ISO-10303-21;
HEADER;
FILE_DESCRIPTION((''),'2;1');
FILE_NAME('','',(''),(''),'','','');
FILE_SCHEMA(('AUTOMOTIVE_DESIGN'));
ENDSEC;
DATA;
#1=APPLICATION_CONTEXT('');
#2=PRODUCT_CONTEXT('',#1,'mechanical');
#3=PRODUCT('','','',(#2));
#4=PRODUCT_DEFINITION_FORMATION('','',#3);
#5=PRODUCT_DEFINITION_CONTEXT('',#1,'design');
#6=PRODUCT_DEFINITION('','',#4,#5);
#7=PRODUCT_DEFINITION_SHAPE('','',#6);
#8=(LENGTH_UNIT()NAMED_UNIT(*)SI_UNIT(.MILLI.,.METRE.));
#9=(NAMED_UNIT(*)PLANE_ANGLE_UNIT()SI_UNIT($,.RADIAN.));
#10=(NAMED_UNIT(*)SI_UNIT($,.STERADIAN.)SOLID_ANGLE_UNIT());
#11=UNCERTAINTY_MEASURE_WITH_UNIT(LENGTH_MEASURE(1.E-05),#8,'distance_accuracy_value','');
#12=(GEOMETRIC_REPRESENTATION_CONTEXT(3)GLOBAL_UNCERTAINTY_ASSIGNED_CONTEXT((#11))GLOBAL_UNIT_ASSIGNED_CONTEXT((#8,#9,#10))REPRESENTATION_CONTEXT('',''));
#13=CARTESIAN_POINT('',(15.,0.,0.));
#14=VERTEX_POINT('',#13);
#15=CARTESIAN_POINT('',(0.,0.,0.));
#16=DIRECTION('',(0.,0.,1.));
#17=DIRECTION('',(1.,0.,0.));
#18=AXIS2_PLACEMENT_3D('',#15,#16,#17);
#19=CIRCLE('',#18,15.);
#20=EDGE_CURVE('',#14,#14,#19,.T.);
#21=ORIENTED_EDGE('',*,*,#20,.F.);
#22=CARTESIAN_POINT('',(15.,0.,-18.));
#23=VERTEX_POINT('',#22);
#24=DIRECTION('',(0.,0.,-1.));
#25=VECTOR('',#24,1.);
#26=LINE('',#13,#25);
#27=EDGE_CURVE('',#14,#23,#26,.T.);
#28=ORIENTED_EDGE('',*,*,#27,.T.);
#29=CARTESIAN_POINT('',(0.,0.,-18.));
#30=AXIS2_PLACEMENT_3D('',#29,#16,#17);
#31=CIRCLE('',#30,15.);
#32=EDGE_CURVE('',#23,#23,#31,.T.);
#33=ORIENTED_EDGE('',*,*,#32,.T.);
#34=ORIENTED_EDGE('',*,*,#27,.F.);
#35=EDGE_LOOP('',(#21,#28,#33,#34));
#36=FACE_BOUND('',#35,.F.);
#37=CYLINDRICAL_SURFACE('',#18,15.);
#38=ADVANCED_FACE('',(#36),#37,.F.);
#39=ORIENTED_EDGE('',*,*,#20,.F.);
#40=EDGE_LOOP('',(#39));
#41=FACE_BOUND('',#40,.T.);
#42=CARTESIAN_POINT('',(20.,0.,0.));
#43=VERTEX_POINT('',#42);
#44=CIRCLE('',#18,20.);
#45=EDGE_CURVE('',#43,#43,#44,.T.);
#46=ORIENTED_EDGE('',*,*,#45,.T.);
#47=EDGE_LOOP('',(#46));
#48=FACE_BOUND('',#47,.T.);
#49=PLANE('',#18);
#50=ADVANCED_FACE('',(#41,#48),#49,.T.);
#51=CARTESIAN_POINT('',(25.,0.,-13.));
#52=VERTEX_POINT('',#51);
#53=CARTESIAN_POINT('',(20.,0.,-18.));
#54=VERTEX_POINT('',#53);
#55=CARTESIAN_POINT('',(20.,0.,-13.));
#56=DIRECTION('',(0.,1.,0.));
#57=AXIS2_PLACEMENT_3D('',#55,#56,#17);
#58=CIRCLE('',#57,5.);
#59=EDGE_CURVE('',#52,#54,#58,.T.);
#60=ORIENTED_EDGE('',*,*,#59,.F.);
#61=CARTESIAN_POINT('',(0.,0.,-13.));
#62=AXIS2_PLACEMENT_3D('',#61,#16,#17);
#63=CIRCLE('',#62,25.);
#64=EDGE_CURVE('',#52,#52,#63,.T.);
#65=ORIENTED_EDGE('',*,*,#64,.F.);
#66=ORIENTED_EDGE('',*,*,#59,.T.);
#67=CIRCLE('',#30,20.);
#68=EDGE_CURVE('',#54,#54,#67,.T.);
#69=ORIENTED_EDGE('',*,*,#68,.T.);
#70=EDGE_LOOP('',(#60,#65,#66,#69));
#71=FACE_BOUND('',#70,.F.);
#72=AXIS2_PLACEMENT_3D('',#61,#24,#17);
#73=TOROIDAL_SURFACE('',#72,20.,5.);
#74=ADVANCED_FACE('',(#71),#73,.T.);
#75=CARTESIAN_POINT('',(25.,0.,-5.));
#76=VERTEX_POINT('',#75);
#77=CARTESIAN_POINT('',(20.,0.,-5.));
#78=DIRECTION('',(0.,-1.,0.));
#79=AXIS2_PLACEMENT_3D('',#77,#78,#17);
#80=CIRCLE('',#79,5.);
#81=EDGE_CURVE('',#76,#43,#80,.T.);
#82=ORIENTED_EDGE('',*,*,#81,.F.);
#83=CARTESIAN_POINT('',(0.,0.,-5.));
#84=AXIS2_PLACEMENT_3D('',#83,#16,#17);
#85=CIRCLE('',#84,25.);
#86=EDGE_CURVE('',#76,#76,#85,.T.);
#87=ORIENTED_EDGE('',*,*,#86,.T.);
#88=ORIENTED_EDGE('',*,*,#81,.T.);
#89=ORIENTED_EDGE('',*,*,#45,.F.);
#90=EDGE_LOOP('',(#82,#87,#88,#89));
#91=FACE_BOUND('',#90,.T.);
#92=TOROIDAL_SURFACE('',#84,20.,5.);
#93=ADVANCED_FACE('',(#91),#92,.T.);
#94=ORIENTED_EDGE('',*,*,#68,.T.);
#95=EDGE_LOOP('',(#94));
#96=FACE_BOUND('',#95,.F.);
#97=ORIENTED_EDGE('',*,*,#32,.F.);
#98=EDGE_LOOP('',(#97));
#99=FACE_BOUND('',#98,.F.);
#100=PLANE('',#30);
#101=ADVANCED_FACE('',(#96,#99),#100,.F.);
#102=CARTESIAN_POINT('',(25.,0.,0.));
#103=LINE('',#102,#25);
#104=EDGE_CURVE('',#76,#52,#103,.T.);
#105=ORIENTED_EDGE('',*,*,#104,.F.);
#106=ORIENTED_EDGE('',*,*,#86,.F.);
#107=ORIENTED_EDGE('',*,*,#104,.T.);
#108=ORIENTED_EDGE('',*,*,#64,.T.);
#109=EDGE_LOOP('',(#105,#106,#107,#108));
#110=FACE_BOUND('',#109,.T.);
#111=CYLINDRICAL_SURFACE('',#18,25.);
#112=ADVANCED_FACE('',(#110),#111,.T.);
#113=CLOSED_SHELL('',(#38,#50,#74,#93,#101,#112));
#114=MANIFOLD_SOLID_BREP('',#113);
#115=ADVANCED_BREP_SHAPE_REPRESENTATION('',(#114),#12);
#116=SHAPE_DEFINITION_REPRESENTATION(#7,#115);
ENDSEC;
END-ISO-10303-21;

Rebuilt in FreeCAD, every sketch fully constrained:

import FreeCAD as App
import Part
import Sketcher
from FreeCAD import Vector
Q = App.Units.Quantity


def edges_at(feature, points):
    """Names of the edges that pass closest to the given points."""
    edges = feature.Shape.Edges
    near = lambda p: min(range(len(edges)), key=lambda i: edges[i].distToShape(Part.Vertex(*p))[0])
    return sorted({f"Edge{near(p) + 1}" for p in points})

doc = App.newDocument("Part")
params = doc.addObject("Spreadsheet::Sheet", "Params")
for row, (alias, value) in enumerate([
    ("sketch1_diameter", "50 mm"),
    ("sketch1_diameter2", "30 mm"),
    ("pad1_length", "18 mm"),
    ("fillet_radius", "5 mm"),
], start=1):
    params.set(f"A{row}", alias)
    params.set(f"B{row}", "=" + value)
    params.setAlias(f"B{row}", alias)

body = doc.addObject("PartDesign::Body", "Body")

# Sketch on XY plane
sketch1 = body.newObject("Sketcher::SketchObject", "Sketch")
sketch1.AttachmentSupport = (doc.getObject("XY_Plane"), [""])
sketch1.MapMode = "FlatFace"
sketch1.addGeometry([
    Part.Circle(Vector(0, 0, 0), Vector(0, 0, 1), 25),
    Part.Circle(Vector(0, 0, 0), Vector(0, 0, 1), 15),
], False)
sketch1.addConstraint([
    Sketcher.Constraint("Coincident", 0, 3, -1, 1),
    Sketcher.Constraint("Coincident", 1, 3, -1, 1),
    Sketcher.Constraint("Diameter", 0, Q("50 mm")),
    Sketcher.Constraint("Diameter", 1, Q("30 mm")),
])
sketch1.setExpression("Constraints[2]", "Params.sketch1_diameter")
sketch1.setExpression("Constraints[3]", "Params.sketch1_diameter2")
pad1 = body.newObject("PartDesign::Pad", "Pad")
pad1.Profile = sketch1
pad1.setExpression("Length", "Params.pad1_length")
pad1.Reversed = True
doc.recompute()

fillet = body.newObject("PartDesign::Fillet", "Fillet")
fillet.Base = (pad1, edges_at(pad1, [(-25, 0, 0), (-25, 0, -18)]))
fillet.setExpression("Radius", "Params.fillet_radius")

doc.recompute()
